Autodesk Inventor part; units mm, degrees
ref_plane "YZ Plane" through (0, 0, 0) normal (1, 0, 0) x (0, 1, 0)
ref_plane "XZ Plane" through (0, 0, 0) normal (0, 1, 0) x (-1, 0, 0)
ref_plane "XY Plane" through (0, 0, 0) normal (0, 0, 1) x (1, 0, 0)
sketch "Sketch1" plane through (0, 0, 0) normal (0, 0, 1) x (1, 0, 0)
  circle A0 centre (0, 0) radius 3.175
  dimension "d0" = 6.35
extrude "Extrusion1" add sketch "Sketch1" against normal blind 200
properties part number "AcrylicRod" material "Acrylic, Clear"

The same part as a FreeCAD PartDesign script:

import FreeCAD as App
import Part
import Sketcher
from FreeCAD import Vector
Q = App.Units.Quantity

doc = App.newDocument("Part")
body = doc.addObject("PartDesign::Body", "Body")

# Sketch on XY plane
sketch1 = body.newObject("Sketcher::SketchObject", "Sketch")
sketch1.AttachmentSupport = (doc.getObject("XY_Plane"), [""])
sketch1.MapMode = "FlatFace"
sketch1.addGeometry(Part.Circle(Vector(0, 0, 0), Vector(0, 0, 1), 3.2), False)
sketch1.addConstraint([
    Sketcher.Constraint("Coincident", 0, 3, -1, 1),
    Sketcher.Constraint("Diameter", 0, Q("6.35 mm")),
])
pad1 = body.newObject("PartDesign::Pad", "Pad")
pad1.Profile = sketch1
pad1.Length = 200
pad1.Reversed = True

doc.recompute()
